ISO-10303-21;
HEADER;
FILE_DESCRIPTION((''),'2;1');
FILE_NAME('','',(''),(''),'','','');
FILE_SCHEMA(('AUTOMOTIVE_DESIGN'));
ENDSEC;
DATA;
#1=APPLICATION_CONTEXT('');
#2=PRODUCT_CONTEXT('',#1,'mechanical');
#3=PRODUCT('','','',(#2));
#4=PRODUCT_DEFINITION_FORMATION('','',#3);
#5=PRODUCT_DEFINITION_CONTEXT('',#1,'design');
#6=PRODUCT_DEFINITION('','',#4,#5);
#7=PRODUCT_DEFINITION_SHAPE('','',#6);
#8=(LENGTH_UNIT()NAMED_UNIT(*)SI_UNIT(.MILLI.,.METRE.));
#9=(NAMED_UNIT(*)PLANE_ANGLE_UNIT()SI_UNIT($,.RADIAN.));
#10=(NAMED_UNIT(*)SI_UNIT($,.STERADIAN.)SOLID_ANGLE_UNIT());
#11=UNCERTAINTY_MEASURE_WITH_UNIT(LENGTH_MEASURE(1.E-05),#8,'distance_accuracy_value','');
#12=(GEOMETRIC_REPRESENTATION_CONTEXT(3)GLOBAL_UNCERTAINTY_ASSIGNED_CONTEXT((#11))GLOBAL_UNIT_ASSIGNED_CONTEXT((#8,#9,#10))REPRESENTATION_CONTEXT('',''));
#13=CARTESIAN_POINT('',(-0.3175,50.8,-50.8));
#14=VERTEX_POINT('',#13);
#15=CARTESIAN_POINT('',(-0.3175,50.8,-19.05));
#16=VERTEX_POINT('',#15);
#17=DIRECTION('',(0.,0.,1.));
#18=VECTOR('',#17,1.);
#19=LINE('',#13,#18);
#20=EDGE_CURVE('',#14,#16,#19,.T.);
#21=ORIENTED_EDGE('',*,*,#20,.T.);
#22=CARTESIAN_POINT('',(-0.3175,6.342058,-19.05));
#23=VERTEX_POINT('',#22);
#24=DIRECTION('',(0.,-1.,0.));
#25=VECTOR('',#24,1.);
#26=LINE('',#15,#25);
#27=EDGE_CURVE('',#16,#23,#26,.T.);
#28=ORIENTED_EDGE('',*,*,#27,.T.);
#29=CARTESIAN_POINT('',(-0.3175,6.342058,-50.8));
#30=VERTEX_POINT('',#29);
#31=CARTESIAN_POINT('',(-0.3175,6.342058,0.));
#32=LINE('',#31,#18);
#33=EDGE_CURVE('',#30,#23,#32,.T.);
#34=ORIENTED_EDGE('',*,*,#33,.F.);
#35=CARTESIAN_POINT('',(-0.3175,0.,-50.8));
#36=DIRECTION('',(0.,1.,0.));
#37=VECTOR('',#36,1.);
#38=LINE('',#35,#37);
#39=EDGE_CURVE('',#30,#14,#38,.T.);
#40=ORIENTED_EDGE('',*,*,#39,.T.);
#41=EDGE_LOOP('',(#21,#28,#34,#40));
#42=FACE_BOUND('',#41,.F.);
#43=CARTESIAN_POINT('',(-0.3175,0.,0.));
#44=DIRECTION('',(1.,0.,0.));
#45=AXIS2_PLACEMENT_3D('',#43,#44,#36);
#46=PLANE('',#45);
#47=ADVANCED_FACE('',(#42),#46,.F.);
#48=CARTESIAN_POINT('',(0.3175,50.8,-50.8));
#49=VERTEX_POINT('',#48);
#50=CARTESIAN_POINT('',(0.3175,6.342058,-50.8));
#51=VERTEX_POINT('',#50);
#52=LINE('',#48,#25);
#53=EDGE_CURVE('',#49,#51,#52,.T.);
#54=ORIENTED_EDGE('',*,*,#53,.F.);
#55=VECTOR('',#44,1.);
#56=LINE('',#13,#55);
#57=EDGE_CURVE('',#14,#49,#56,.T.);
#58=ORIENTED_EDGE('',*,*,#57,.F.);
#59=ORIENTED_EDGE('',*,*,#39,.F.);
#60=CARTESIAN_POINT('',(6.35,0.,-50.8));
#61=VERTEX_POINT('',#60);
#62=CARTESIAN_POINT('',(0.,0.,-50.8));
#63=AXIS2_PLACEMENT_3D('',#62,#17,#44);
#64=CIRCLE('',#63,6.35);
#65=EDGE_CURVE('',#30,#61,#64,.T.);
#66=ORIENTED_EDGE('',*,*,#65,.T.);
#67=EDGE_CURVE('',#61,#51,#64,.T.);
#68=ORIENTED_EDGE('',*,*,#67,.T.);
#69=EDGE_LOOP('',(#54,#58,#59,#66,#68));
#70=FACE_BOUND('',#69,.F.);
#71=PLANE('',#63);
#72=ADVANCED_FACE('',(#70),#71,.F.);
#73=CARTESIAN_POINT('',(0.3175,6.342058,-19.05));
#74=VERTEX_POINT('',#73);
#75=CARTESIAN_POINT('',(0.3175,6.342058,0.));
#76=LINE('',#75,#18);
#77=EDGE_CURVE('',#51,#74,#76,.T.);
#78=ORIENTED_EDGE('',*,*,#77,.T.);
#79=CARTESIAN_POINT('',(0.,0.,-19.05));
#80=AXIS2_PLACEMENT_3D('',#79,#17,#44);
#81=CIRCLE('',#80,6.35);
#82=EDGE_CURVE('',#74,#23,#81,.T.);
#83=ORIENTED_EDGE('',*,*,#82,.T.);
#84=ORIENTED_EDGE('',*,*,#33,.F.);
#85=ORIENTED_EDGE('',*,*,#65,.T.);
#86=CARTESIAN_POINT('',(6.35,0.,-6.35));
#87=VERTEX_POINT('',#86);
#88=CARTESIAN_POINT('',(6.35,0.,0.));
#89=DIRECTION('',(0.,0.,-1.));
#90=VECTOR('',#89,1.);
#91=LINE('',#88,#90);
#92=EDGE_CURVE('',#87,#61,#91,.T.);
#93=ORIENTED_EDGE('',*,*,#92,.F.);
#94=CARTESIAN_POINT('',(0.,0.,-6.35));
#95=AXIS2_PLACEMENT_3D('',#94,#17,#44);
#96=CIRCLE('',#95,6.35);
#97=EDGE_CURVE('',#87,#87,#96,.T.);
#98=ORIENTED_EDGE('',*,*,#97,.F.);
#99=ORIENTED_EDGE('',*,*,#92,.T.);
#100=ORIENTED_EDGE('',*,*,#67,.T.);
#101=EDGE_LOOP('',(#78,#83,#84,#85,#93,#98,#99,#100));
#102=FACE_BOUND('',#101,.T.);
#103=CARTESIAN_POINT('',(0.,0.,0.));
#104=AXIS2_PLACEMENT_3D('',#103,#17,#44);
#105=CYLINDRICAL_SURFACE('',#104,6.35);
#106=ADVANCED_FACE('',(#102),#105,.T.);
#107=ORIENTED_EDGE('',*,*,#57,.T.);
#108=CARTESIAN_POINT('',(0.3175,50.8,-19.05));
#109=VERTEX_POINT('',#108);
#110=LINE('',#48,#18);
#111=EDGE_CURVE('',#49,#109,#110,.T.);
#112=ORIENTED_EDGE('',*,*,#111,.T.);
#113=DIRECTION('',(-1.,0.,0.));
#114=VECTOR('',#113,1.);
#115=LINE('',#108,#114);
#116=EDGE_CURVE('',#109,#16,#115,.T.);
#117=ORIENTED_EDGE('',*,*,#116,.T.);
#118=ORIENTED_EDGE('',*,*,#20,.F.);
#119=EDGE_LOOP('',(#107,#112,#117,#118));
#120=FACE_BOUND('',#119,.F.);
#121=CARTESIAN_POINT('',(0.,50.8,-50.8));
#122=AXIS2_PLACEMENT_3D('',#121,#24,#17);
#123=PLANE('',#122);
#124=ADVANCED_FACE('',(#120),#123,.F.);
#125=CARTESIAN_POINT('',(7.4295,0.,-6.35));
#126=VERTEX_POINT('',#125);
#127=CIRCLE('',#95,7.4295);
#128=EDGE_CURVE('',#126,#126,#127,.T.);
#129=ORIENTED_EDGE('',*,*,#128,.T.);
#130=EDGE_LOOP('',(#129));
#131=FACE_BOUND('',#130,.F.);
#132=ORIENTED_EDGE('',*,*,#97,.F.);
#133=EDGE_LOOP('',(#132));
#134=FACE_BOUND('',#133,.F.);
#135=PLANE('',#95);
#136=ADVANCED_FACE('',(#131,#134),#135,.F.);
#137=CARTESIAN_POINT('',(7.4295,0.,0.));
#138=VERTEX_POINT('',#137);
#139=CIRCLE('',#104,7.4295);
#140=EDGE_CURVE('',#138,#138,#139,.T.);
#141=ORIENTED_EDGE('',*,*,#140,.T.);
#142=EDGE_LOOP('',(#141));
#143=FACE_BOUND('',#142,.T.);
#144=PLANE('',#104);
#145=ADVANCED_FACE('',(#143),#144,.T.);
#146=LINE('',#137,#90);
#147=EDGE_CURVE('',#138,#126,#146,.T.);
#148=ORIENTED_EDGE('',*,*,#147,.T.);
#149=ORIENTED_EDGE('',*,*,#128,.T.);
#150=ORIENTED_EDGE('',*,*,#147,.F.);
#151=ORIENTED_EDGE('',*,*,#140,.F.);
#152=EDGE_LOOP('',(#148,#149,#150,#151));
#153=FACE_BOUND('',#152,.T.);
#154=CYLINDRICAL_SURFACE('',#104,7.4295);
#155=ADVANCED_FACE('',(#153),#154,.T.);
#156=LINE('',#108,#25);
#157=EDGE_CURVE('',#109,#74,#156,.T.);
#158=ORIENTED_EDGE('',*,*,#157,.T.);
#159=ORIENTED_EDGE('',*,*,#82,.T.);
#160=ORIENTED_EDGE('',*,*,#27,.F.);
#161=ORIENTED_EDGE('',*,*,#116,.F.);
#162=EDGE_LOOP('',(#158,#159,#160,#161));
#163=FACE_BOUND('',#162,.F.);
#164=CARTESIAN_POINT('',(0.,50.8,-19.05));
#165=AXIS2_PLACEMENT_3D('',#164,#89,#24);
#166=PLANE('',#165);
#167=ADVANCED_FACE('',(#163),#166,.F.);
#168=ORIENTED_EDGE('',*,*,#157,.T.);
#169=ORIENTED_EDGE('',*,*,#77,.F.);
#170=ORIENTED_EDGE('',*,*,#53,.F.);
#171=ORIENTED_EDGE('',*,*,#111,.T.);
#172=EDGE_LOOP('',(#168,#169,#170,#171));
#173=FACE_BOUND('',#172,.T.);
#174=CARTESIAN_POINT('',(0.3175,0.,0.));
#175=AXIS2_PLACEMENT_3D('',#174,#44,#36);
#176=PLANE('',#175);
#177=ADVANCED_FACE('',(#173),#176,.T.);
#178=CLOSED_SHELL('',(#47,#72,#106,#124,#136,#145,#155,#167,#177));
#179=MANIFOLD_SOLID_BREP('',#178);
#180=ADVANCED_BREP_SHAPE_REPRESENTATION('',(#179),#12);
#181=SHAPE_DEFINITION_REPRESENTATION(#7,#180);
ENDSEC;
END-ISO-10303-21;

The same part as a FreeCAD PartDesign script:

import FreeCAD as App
import Part
import Sketcher

V = App.Vector
Q = App.Units.Quantity

doc = App.newDocument("Part")
params = doc.addObject("Spreadsheet::Sheet", "Params")
for row, (alias, value) in enumerate([
    ("sketch1_diameter", "0.5 in"),
    ("pad1_length", "2 in"),
    ("sketch2_diameter", "0.585 in"),
    ("pad2_length", "0.25 in"),
    ("sketch3_width", "2 in"),
    ("pad3_length", "0.025 in"),
], start=1):
    params.set(f"A{row}", alias)
    params.set(f"B{row}", "=" + value)
    params.setAlias(f"B{row}", alias)

body = doc.addObject("PartDesign::Body", "Body")

sketch1 = doc.addObject("Sketcher::SketchObject", "Sketch")
body.addObject(sketch1)
sketch1.AttachmentSupport = (doc.XY_Plane, [""])
sketch1.MapMode = "FlatFace"
sketch1.addGeometry(Part.Circle(V(0, 0, 0), V(0, 0, 1), 6), False)
sketch1.addConstraint([
    Sketcher.Constraint("Coincident", 0, 3, -1, 1),
    Sketcher.Constraint("Diameter", 0, Q("0.5 in")),
])
sketch1.setExpression("Constraints[1]", "Params.sketch1_diameter")
pad1 = doc.addObject("PartDesign::Pad", "Pad")
body.addObject(pad1)
pad1.Profile = sketch1
pad1.setExpression("Length", "Params.pad1_length")
pad1.Reversed = True

sketch2 = doc.addObject("Sketcher::SketchObject", "Sketch001")
body.addObject(sketch2)
sketch2.AttachmentSupport = (doc.XY_Plane, [""])
sketch2.MapMode = "FlatFace"
sketch2.addGeometry(Part.Circle(V(0, 0, 0), V(0, 0, 1), 7), False)
sketch2.addConstraint([
    Sketcher.Constraint("Coincident", 0, 3, -1, 1),
    Sketcher.Constraint("Diameter", 0, Q("0.585 in")),
])
sketch2.setExpression("Constraints[1]", "Params.sketch2_diameter")
pad2 = doc.addObject("PartDesign::Pad", "Pad001")
body.addObject(pad2)
pad2.Profile = sketch2
pad2.setExpression("Length", "Params.pad2_length")
pad2.Reversed = True

sketch3 = doc.addObject("Sketcher::SketchObject", "Sketch002")
body.addObject(sketch3)
sketch3.AttachmentSupport = (doc.YZ_Plane, [""])
sketch3.MapMode = "FlatFace"
sketch3.addGeometry([
    Part.LineSegment(V(0, -19, 0), V(0, -51, 0)),
    Part.LineSegment(V(0, -51, 0), V(51, -51, 0)),
    Part.LineSegment(V(51, -51, 0), V(51, -19, 0)),
    Part.LineSegment(V(51, -19, 0), V(0, -19, 0)),
], False)
sketch3.addConstraint([
    Sketcher.Constraint("Coincident", 0, 2, 1, 1),
    Sketcher.Constraint("Coincident", 1, 2, 2, 1),
    Sketcher.Constraint("Coincident", 2, 2, 3, 1),
    Sketcher.Constraint("Coincident", 3, 2, 0, 1),
    Sketcher.Constraint("Vertical", 0),
    Sketcher.Constraint("Horizontal", 1),
    Sketcher.Constraint("Vertical", 2),
    Sketcher.Constraint("Horizontal", 3),
    Sketcher.Constraint("PointOnObject", 0, 2, -2),
    Sketcher.Constraint("DistanceX", 1, 1, 1, 2, Q("2 in")),
    Sketcher.Constraint("DistanceY", 0, 2, -1, 1, Q("2 in")),
    Sketcher.Constraint("DistanceY", 2, 2, -1, 1, Q("0.75 in")),
])
sketch3.setExpression("Constraints[9]", "Params.sketch3_width")
pad3 = doc.addObject("PartDesign::Pad", "Pad002")
body.addObject(pad3)
pad3.Profile = sketch3
pad3.setExpression("Length", "Params.pad3_length")
pad3.Midplane = True

doc.recompute()
